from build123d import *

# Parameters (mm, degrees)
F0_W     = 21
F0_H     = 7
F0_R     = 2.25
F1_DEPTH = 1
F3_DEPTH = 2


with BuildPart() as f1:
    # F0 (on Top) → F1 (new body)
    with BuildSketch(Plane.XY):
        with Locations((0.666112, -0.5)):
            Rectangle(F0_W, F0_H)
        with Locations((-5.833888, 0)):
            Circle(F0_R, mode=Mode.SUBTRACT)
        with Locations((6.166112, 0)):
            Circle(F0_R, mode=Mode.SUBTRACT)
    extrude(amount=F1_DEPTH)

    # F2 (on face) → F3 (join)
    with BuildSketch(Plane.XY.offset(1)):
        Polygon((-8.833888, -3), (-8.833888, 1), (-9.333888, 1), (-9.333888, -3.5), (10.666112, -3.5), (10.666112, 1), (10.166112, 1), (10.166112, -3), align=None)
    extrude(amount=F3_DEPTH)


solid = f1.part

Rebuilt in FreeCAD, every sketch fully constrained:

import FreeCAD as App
import Part
import Sketcher

V = App.Vector

doc = App.newDocument("Part")
body = doc.addObject("PartDesign::Body", "Body")

# Sketch on XY plane
sketch1 = body.newObject("Sketcher::SketchObject", "Sketch")
sketch1.AttachmentSupport = (doc.getObject("XY_Plane"), [""])
sketch1.MapMode = "FlatFace"
sketch1.addGeometry([
    Part.LineSegment(V(-9.833888, 3, 0), V(-9.833888, -4, 0)),  # 0
    Part.LineSegment(V(-9.833888, -4, 0), V(11.166112, -4, 0)),  # 1
    Part.LineSegment(V(11.166112, -4, 0), V(11.166112, 3, 0)),  # 2
    Part.LineSegment(V(11.166112, 3, 0), V(-9.833888, 3, 0)),  # 3
    Part.Circle(V(-5.833888, 0, 0), V(0, 0, 1), 2.25),  # 4
    Part.Circle(V(6.166112, 0, 0), V(0, 0, 1), 2.25),  # 5
], False)
sketch1.addConstraint([
    Sketcher.Constraint("Coincident", 0, 2, 1, 1),
    Sketcher.Constraint("Coincident", 1, 2, 2, 1),
    Sketcher.Constraint("Coincident", 2, 2, 3, 1),
    Sketcher.Constraint("Coincident", 3, 2, 0, 1),
    Sketcher.Constraint("Vertical", 0),
    Sketcher.Constraint("Horizontal", 1),
    Sketcher.Constraint("Vertical", 2),
    Sketcher.Constraint("Horizontal", 3),
    Sketcher.Constraint("Equal", 4, 5),
    Sketcher.Constraint("PointOnObject", 4, 3, -1),
    Sketcher.Constraint("PointOnObject", 5, 3, -1),
    Sketcher.Constraint("Diameter", 4, 4.5),
    Sketcher.Constraint("DistanceX", 1, 1, 1, 2, 21.0),
    Sketcher.Constraint("DistanceY", 0, 2, 0, 1, 7.0),
    Sketcher.Constraint("DistanceY", 0, 2, -1, 1, 4.0),
    Sketcher.Constraint("DistanceX", 4, 3, 5, 3, 12.0),
    Sketcher.Constraint("DistanceX", 0, 2, 4, 3, 4.0),
    Sketcher.Constraint("DistanceX", 4, 3, -1, 1, 5.833888),
])
pad1 = body.newObject("PartDesign::Pad", "Pad")
pad1.Profile = sketch1
pad1.Length = 1

# Sketch on XY plane
sketch2 = body.newObject("Sketcher::SketchObject", "Sketch001")
sketch2.AttachmentSupport = (doc.getObject("XY_Plane"), [""])
sketch2.MapMode = "FlatFace"
sketch2.AttachmentOffset = App.Placement(V(0, 0, 1), App.Rotation())
sketch2.addGeometry([
    Part.LineSegment(V(-8.833888, -3, 0), V(-8.833888, 1, 0)),  # 0
    Part.LineSegment(V(-8.833888, 1, 0), V(-9.333888, 1, 0)),  # 1
    Part.LineSegment(V(-9.333888, 1, 0), V(-9.333888, -3.5, 0)),  # 2
    Part.LineSegment(V(-9.333888, -3.5, 0), V(10.666112, -3.5, 0)),  # 3
    Part.LineSegment(V(10.666112, -3.5, 0), V(10.666112, 1, 0)),  # 4
    Part.LineSegment(V(10.666112, 1, 0), V(10.166112, 1, 0)),  # 5
    Part.LineSegment(V(10.166112, 1, 0), V(10.166112, -3, 0)),  # 6
    Part.LineSegment(V(10.166112, -3, 0), V(-8.833888, -3, 0)),  # 7
], False)
sketch2.addConstraint([
    Sketcher.Constraint("Coincident", 0, 2, 1, 1),
    Sketcher.Constraint("Coincident", 1, 2, 2, 1),
    Sketcher.Constraint("Coincident", 2, 2, 3, 1),
    Sketcher.Constraint("Coincident", 3, 2, 4, 1),
    Sketcher.Constraint("Coincident", 4, 2, 5, 1),
    Sketcher.Constraint("Coincident", 5, 2, 6, 1),
    Sketcher.Constraint("Coincident", 6, 2, 7, 1),
    Sketcher.Constraint("Coincident", 7, 2, 0, 1),
    Sketcher.Constraint("Vertical", 0),
    Sketcher.Constraint("Horizontal", 1),
    Sketcher.Constraint("Vertical", 2),
    Sketcher.Constraint("Horizontal", 3),
    Sketcher.Constraint("Vertical", 4),
    Sketcher.Constraint("Horizontal", 5),
    Sketcher.Constraint("Vertical", 6),
    Sketcher.Constraint("Horizontal", 7),
    Sketcher.Constraint("Horizontal", 1, 2, 4, 2),
    Sketcher.Constraint("Equal", 1, 5),
    Sketcher.Constraint("DistanceX", 3, 1, 3, 2, 20.0),
    Sketcher.Constraint("DistanceX", 7, 2, 7, 1, 19.0),
    Sketcher.Constraint("DistanceY", 0, 1, 0, 2, 4.0),
    Sketcher.Constraint("DistanceY", 2, 2, 2, 1, 4.5),
    Sketcher.Constraint("DistanceY", -1, 1, 0, 2, 1.0),
    Sketcher.Constraint("DistanceX", 0, 2, -1, 1, 8.833888),
])
pad2 = body.newObject("PartDesign::Pad", "Pad001")
pad2.Profile = sketch2
pad2.Length = 2

doc.recompute()
